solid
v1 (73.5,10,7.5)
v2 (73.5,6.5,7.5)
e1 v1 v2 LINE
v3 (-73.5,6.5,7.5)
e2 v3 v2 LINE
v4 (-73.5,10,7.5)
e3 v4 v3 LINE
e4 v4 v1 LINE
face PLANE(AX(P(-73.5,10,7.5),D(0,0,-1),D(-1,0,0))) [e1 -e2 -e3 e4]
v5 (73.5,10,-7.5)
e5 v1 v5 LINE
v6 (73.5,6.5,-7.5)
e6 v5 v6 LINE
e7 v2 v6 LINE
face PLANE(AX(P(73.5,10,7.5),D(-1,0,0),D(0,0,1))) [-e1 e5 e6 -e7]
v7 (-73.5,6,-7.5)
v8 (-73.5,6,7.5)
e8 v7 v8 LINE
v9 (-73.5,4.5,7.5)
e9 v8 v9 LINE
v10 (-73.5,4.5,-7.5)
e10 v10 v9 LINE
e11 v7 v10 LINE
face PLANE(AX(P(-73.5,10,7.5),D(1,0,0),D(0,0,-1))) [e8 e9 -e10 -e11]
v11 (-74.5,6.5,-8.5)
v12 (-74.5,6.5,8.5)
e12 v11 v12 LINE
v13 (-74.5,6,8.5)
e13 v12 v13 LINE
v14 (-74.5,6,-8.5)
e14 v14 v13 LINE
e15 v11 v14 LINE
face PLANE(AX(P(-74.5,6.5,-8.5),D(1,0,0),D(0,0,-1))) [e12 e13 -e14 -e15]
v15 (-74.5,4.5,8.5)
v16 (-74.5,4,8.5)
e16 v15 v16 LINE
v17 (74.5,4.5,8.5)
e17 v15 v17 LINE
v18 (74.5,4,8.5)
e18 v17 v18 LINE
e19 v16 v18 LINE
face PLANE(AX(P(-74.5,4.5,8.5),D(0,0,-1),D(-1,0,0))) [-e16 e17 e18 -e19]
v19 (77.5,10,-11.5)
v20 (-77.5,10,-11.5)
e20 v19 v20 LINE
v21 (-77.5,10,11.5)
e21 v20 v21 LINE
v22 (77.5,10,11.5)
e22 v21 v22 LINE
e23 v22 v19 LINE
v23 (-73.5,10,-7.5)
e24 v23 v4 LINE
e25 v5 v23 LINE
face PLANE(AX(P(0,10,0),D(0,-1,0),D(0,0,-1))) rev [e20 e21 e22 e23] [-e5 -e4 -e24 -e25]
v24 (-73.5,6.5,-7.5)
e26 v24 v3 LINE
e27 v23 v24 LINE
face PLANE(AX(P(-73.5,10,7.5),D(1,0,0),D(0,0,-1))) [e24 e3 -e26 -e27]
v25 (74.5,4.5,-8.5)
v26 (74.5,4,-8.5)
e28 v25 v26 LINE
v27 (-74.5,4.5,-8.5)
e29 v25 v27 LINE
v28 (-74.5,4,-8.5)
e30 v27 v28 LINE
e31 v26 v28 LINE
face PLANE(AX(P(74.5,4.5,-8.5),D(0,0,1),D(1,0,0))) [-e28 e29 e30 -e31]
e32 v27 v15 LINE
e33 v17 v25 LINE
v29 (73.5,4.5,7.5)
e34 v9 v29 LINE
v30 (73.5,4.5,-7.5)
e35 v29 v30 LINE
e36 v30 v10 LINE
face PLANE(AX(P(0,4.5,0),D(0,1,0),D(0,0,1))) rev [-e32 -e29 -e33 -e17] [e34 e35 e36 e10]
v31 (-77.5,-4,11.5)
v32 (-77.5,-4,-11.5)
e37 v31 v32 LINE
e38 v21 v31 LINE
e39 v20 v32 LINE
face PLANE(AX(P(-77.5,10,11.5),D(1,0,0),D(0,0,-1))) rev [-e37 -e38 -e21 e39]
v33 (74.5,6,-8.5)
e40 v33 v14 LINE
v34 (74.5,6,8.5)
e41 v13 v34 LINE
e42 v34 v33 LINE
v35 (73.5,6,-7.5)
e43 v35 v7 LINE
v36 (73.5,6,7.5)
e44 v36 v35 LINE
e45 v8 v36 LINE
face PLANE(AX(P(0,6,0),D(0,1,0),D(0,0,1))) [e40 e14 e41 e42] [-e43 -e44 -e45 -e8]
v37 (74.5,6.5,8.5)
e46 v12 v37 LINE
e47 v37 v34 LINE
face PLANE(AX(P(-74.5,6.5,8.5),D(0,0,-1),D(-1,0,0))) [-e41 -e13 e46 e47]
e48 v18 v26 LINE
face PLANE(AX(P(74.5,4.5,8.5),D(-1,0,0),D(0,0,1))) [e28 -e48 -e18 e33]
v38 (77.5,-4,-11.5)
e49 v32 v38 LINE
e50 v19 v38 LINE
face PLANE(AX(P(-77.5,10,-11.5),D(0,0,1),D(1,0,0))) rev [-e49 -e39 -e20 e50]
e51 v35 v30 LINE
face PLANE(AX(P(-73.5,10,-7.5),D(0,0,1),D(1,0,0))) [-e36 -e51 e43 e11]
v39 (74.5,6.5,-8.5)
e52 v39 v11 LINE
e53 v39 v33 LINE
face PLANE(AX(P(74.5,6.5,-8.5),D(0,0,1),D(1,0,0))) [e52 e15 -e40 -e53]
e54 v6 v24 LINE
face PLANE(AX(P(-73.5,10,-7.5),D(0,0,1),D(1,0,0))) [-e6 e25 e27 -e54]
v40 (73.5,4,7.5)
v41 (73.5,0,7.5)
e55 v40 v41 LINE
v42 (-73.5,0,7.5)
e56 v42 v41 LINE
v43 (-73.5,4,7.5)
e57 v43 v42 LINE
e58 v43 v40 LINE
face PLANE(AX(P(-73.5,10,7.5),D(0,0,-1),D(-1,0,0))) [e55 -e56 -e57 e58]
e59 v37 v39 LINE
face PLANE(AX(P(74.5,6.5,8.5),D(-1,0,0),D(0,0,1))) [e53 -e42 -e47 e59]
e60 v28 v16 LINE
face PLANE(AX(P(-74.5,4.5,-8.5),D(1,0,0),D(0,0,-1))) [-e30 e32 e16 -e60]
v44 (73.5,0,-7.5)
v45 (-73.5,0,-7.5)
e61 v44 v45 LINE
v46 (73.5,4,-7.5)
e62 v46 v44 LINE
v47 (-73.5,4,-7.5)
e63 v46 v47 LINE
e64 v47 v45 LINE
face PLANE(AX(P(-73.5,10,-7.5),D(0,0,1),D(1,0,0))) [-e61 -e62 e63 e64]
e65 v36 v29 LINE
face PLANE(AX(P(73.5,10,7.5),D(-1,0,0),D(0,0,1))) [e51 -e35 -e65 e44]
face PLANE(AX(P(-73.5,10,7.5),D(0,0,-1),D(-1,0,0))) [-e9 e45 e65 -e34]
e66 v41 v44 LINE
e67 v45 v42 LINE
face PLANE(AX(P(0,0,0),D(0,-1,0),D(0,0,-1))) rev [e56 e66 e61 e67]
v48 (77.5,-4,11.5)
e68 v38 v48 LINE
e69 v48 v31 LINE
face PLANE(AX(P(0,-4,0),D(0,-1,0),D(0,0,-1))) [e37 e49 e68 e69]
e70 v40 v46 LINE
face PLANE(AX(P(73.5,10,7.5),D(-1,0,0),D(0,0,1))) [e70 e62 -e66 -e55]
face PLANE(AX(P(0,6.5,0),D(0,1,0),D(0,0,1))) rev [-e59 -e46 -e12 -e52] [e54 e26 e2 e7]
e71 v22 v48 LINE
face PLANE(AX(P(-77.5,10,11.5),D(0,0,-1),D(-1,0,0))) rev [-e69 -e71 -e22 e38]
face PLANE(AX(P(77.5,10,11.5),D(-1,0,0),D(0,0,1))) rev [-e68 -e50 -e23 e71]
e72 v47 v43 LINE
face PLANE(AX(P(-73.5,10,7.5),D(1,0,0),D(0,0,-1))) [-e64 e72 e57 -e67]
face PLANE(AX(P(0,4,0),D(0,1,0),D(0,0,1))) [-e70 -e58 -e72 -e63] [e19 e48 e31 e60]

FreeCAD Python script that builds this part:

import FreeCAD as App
import Part
import Sketcher
from FreeCAD import Vector
Q = App.Units.Quantity


def add_polygon(sketch, points):
    """Adds a closed chain of lines whose ends are joined by coincident constraints."""
    first, n = sketch.GeometryCount, len(points)
    for a, b in zip(points, points[1:] + points[:1]):
        sketch.addGeometry(Part.LineSegment(App.Vector(*a, 0), App.Vector(*b, 0)), False)
    for i in range(n):
        sketch.addConstraint(Sketcher.Constraint("Coincident", first + i, 2, first + (i + 1) % n, 1))

doc = App.newDocument("Part")
body = doc.addObject("PartDesign::Body", "Body")

sketch1 = body.newObject("Sketcher::SketchObject", "Sketch")
sketch1.AttachmentSupport = (doc.getObject("XZ_Plane"), [""])
sketch1.MapMode = "FlatFace"
add_polygon(sketch1, [(-78, -12), (-78, 12), (78, 12), (78, -12)])
add_polygon(sketch1, [(74, 8), (-74, 8), (-74, -8), (74, -8)])
sketch1.addConstraint([
    Sketcher.Constraint("Vertical", 0),
    Sketcher.Constraint("Horizontal", 1),
    Sketcher.Constraint("Vertical", 2),
    Sketcher.Constraint("Horizontal", 3),
    Sketcher.Constraint("Horizontal", 4),
    Sketcher.Constraint("Vertical", 5),
    Sketcher.Constraint("Horizontal", 6),
    Sketcher.Constraint("Vertical", 7),
    Sketcher.Constraint("Symmetric", 0, 2, 2, 2, -1, 1),
    Sketcher.Constraint("Symmetric", 4, 2, 6, 2, -1, 1),
    Sketcher.Constraint("DistanceX", 1, 1, 1, 2, Q("155 mm")),
    Sketcher.Constraint("DistanceX", 4, 2, 4, 1, Q("147 mm")),
    Sketcher.Constraint("DistanceY", 0, 1, 0, 2, Q("23 mm")),
    Sketcher.Constraint("DistanceY", 5, 2, 5, 1, Q("15 mm")),
])
pad1 = body.newObject("PartDesign::Pad", "Pad")
pad1.Profile = sketch1
pad1.Length = 10
pad1.Reversed = True

sketch2 = body.newObject("Sketcher::SketchObject", "Sketch001")
sketch2.AttachmentSupport = (doc.getObject("XZ_Plane"), [""])
sketch2.MapMode = "FlatFace"
add_polygon(sketch2, [(-78, 12), (-78, -12), (78, -12), (78, 12)])
sketch2.addConstraint([
    Sketcher.Constraint("Vertical", 0),
    Sketcher.Constraint("Horizontal", 1),
    Sketcher.Constraint("Vertical", 2),
    Sketcher.Constraint("Horizontal", 3),
    Sketcher.Constraint("Symmetric", 0, 2, 2, 2, -1, 1),
    Sketcher.Constraint("DistanceX", 1, 1, 1, 2, Q("155 mm")),
    Sketcher.Constraint("DistanceY", 0, 2, 0, 1, Q("23 mm")),
])
pad2 = body.newObject("PartDesign::Pad", "Pad001")
pad2.Profile = sketch2
pad2.Length = 4

sketch3 = body.newObject("Sketcher::SketchObject", "Sketch002")
sketch3.AttachmentSupport = (doc.getObject("XZ_Plane"), [""])
sketch3.MapMode = "FlatFace"
sketch3.AttachmentOffset = App.Placement(Vector(0, 0, -4), App.Rotation())
add_polygon(sketch3, [(-74, -8), (-74, 8), (74, 8), (74, -8)])
add_polygon(sketch3, [(74, 8), (-74, 8), (-74, -8), (74, -8)])
sketch3.addConstraint([
    Sketcher.Constraint("Vertical", 0),
    Sketcher.Constraint("Horizontal", 1),
    Sketcher.Constraint("Vertical", 2),
    Sketcher.Constraint("Horizontal", 3),
    Sketcher.Constraint("Horizontal", 4),
    Sketcher.Constraint("Vertical", 5),
    Sketcher.Constraint("Horizontal", 6),
    Sketcher.Constraint("Vertical", 7),
    Sketcher.Constraint("Symmetric", 0, 2, 2, 2, -1, 1),
    Sketcher.Constraint("Symmetric", 4, 2, 6, 2, -1, 1),
    Sketcher.Constraint("DistanceX", 1, 1, 1, 2, Q("149 mm")),
    Sketcher.Constraint("DistanceX", 4, 2, 4, 1, Q("147 mm")),
    Sketcher.Constraint("DistanceY", 0, 1, 0, 2, Q("17 mm")),
    Sketcher.Constraint("DistanceY", 5, 2, 5, 1, Q("15 mm")),
])
pocket1 = body.newObject("PartDesign::Pocket", "Pocket")
pocket1.Profile = sketch3
pocket1.Length = 0.5

sketch4 = body.newObject("Sketcher::SketchObject", "Sketch003")
sketch4.AttachmentSupport = (doc.getObject("XZ_Plane"), [""])
sketch4.MapMode = "FlatFace"
sketch4.AttachmentOffset = App.Placement(Vector(0, 0, -6), App.Rotation())
add_polygon(sketch4, [(-74, -8), (-74, 8), (74, 8), (74, -8)])
sketch4.addConstraint([
    Sketcher.Constraint("Vertical", 0),
    Sketcher.Constraint("Horizontal", 1),
    Sketcher.Constraint("Vertical", 2),
    Sketcher.Constraint("Horizontal", 3),
    Sketcher.Constraint("Symmetric", 0, 2, 2, 2, -1, 1),
    Sketcher.Constraint("DistanceX", 1, 1, 1, 2, Q("149 mm")),
    Sketcher.Constraint("DistanceY", 0, 1, 0, 2, Q("17 mm")),
])
pocket2 = body.newObject("PartDesign::Pocket", "Pocket001")
pocket2.Profile = sketch4
pocket2.Length = 0.5

doc.recompute()
